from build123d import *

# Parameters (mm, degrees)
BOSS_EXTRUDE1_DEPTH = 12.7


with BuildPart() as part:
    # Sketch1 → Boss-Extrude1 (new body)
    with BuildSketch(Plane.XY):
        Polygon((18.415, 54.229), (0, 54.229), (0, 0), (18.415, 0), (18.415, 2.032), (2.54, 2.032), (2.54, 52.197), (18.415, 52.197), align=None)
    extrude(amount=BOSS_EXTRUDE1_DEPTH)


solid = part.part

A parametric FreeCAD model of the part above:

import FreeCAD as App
import Part
import Sketcher

V = App.Vector
Q = App.Units.Quantity

doc = App.newDocument("Part")
params = doc.addObject("Spreadsheet::Sheet", "Params")
for row, (alias, value) in enumerate([
    ("sketch1_height", "0.08 in"),
    ("sketch1_width", "0.725 in"),
    ("sketch1_height2", "2.135 in"),
    ("pad1_length", "0.5 in"),
], start=1):
    params.set(f"A{row}", alias)
    params.set(f"B{row}", "=" + value)
    params.setAlias(f"B{row}", alias)

body = doc.addObject("PartDesign::Body", "Body")

# Sketch on XY plane
sketch1 = doc.addObject("Sketcher::SketchObject", "Sketch")
body.addObject(sketch1)
sketch1.AttachmentSupport = (doc.XY_Plane, [""])
sketch1.MapMode = "FlatFace"
sketch1.addGeometry(Part.LineSegment(V(18.4, 54.2, 0), V(0, 54.2, 0)), False)
sketch1.addGeometry(Part.LineSegment(V(0, 54.2, 0), V(0, 0, 0)), False)
sketch1.addGeometry(Part.LineSegment(V(0, 0, 0), V(18.4, 0, 0)), False)
sketch1.addGeometry(Part.LineSegment(V(18.4, 0, 0), V(18.4, 2, 0)), False)
sketch1.addGeometry(Part.LineSegment(V(18.4, 2, 0), V(2.5, 2, 0)), False)
sketch1.addGeometry(Part.LineSegment(V(2.5, 2, 0), V(2.5, 52.2, 0)), False)
sketch1.addGeometry(Part.LineSegment(V(2.5, 52.2, 0), V(18.4, 52.2, 0)), False)
sketch1.addGeometry(Part.LineSegment(V(18.4, 52.2, 0), V(18.4, 54.2, 0)), False)
sketch1.addConstraint(Sketcher.Constraint("Coincident", 0, 2, 1, 1))
sketch1.addConstraint(Sketcher.Constraint("Coincident", 1, 2, 2, 1))
sketch1.addConstraint(Sketcher.Constraint("Coincident", 2, 2, 3, 1))
sketch1.addConstraint(Sketcher.Constraint("Coincident", 3, 2, 4, 1))
sketch1.addConstraint(Sketcher.Constraint("Coincident", 4, 2, 5, 1))
sketch1.addConstraint(Sketcher.Constraint("Coincident", 5, 2, 6, 1))
sketch1.addConstraint(Sketcher.Constraint("Coincident", 6, 2, 7, 1))
sketch1.addConstraint(Sketcher.Constraint("Coincident", 7, 2, 0, 1))
sketch1.addConstraint(Sketcher.Constraint("Horizontal", 0))
sketch1.addConstraint(Sketcher.Constraint("Vertical", 1))
sketch1.addConstraint(Sketcher.Constraint("Horizontal", 2))
sketch1.addConstraint(Sketcher.Constraint("Vertical", 3))
sketch1.addConstraint(Sketcher.Constraint("Horizontal", 4))
sketch1.addConstraint(Sketcher.Constraint("Vertical", 5))
sketch1.addConstraint(Sketcher.Constraint("Horizontal", 6))
sketch1.addConstraint(Sketcher.Constraint("Vertical", 7))
sketch1.addConstraint(Sketcher.Constraint("Coincident", 1, 2, -1, 1))
sketch1.addConstraint(Sketcher.Constraint("Vertical", 3, 2, 6, 2))
sketch1.addConstraint(Sketcher.Constraint("Equal", 3, 7))
sketch1.addConstraint(Sketcher.Constraint("DistanceY", 3, 1, 3, 2, Q("0.08 in")))
sketch1.addConstraint(Sketcher.Constraint("DistanceX", -1, 1, 4, 2, Q("0.1 in")))
sketch1.addConstraint(Sketcher.Constraint("DistanceX", 0, 2, 0, 1, Q("0.725 in")))
sketch1.addConstraint(Sketcher.Constraint("DistanceY", 1, 2, 1, 1, Q("2.135 in")))
sketch1.setExpression("Constraints[19]", "Params.sketch1_height")
sketch1.setExpression("Constraints[21]", "Params.sketch1_width")
sketch1.setExpression("Constraints[22]", "Params.sketch1_height2")
pad1 = doc.addObject("PartDesign::Pad", "Pad")
body.addObject(pad1)
pad1.Profile = sketch1
pad1.setExpression("Length", "Params.pad1_length")

doc.recompute()
